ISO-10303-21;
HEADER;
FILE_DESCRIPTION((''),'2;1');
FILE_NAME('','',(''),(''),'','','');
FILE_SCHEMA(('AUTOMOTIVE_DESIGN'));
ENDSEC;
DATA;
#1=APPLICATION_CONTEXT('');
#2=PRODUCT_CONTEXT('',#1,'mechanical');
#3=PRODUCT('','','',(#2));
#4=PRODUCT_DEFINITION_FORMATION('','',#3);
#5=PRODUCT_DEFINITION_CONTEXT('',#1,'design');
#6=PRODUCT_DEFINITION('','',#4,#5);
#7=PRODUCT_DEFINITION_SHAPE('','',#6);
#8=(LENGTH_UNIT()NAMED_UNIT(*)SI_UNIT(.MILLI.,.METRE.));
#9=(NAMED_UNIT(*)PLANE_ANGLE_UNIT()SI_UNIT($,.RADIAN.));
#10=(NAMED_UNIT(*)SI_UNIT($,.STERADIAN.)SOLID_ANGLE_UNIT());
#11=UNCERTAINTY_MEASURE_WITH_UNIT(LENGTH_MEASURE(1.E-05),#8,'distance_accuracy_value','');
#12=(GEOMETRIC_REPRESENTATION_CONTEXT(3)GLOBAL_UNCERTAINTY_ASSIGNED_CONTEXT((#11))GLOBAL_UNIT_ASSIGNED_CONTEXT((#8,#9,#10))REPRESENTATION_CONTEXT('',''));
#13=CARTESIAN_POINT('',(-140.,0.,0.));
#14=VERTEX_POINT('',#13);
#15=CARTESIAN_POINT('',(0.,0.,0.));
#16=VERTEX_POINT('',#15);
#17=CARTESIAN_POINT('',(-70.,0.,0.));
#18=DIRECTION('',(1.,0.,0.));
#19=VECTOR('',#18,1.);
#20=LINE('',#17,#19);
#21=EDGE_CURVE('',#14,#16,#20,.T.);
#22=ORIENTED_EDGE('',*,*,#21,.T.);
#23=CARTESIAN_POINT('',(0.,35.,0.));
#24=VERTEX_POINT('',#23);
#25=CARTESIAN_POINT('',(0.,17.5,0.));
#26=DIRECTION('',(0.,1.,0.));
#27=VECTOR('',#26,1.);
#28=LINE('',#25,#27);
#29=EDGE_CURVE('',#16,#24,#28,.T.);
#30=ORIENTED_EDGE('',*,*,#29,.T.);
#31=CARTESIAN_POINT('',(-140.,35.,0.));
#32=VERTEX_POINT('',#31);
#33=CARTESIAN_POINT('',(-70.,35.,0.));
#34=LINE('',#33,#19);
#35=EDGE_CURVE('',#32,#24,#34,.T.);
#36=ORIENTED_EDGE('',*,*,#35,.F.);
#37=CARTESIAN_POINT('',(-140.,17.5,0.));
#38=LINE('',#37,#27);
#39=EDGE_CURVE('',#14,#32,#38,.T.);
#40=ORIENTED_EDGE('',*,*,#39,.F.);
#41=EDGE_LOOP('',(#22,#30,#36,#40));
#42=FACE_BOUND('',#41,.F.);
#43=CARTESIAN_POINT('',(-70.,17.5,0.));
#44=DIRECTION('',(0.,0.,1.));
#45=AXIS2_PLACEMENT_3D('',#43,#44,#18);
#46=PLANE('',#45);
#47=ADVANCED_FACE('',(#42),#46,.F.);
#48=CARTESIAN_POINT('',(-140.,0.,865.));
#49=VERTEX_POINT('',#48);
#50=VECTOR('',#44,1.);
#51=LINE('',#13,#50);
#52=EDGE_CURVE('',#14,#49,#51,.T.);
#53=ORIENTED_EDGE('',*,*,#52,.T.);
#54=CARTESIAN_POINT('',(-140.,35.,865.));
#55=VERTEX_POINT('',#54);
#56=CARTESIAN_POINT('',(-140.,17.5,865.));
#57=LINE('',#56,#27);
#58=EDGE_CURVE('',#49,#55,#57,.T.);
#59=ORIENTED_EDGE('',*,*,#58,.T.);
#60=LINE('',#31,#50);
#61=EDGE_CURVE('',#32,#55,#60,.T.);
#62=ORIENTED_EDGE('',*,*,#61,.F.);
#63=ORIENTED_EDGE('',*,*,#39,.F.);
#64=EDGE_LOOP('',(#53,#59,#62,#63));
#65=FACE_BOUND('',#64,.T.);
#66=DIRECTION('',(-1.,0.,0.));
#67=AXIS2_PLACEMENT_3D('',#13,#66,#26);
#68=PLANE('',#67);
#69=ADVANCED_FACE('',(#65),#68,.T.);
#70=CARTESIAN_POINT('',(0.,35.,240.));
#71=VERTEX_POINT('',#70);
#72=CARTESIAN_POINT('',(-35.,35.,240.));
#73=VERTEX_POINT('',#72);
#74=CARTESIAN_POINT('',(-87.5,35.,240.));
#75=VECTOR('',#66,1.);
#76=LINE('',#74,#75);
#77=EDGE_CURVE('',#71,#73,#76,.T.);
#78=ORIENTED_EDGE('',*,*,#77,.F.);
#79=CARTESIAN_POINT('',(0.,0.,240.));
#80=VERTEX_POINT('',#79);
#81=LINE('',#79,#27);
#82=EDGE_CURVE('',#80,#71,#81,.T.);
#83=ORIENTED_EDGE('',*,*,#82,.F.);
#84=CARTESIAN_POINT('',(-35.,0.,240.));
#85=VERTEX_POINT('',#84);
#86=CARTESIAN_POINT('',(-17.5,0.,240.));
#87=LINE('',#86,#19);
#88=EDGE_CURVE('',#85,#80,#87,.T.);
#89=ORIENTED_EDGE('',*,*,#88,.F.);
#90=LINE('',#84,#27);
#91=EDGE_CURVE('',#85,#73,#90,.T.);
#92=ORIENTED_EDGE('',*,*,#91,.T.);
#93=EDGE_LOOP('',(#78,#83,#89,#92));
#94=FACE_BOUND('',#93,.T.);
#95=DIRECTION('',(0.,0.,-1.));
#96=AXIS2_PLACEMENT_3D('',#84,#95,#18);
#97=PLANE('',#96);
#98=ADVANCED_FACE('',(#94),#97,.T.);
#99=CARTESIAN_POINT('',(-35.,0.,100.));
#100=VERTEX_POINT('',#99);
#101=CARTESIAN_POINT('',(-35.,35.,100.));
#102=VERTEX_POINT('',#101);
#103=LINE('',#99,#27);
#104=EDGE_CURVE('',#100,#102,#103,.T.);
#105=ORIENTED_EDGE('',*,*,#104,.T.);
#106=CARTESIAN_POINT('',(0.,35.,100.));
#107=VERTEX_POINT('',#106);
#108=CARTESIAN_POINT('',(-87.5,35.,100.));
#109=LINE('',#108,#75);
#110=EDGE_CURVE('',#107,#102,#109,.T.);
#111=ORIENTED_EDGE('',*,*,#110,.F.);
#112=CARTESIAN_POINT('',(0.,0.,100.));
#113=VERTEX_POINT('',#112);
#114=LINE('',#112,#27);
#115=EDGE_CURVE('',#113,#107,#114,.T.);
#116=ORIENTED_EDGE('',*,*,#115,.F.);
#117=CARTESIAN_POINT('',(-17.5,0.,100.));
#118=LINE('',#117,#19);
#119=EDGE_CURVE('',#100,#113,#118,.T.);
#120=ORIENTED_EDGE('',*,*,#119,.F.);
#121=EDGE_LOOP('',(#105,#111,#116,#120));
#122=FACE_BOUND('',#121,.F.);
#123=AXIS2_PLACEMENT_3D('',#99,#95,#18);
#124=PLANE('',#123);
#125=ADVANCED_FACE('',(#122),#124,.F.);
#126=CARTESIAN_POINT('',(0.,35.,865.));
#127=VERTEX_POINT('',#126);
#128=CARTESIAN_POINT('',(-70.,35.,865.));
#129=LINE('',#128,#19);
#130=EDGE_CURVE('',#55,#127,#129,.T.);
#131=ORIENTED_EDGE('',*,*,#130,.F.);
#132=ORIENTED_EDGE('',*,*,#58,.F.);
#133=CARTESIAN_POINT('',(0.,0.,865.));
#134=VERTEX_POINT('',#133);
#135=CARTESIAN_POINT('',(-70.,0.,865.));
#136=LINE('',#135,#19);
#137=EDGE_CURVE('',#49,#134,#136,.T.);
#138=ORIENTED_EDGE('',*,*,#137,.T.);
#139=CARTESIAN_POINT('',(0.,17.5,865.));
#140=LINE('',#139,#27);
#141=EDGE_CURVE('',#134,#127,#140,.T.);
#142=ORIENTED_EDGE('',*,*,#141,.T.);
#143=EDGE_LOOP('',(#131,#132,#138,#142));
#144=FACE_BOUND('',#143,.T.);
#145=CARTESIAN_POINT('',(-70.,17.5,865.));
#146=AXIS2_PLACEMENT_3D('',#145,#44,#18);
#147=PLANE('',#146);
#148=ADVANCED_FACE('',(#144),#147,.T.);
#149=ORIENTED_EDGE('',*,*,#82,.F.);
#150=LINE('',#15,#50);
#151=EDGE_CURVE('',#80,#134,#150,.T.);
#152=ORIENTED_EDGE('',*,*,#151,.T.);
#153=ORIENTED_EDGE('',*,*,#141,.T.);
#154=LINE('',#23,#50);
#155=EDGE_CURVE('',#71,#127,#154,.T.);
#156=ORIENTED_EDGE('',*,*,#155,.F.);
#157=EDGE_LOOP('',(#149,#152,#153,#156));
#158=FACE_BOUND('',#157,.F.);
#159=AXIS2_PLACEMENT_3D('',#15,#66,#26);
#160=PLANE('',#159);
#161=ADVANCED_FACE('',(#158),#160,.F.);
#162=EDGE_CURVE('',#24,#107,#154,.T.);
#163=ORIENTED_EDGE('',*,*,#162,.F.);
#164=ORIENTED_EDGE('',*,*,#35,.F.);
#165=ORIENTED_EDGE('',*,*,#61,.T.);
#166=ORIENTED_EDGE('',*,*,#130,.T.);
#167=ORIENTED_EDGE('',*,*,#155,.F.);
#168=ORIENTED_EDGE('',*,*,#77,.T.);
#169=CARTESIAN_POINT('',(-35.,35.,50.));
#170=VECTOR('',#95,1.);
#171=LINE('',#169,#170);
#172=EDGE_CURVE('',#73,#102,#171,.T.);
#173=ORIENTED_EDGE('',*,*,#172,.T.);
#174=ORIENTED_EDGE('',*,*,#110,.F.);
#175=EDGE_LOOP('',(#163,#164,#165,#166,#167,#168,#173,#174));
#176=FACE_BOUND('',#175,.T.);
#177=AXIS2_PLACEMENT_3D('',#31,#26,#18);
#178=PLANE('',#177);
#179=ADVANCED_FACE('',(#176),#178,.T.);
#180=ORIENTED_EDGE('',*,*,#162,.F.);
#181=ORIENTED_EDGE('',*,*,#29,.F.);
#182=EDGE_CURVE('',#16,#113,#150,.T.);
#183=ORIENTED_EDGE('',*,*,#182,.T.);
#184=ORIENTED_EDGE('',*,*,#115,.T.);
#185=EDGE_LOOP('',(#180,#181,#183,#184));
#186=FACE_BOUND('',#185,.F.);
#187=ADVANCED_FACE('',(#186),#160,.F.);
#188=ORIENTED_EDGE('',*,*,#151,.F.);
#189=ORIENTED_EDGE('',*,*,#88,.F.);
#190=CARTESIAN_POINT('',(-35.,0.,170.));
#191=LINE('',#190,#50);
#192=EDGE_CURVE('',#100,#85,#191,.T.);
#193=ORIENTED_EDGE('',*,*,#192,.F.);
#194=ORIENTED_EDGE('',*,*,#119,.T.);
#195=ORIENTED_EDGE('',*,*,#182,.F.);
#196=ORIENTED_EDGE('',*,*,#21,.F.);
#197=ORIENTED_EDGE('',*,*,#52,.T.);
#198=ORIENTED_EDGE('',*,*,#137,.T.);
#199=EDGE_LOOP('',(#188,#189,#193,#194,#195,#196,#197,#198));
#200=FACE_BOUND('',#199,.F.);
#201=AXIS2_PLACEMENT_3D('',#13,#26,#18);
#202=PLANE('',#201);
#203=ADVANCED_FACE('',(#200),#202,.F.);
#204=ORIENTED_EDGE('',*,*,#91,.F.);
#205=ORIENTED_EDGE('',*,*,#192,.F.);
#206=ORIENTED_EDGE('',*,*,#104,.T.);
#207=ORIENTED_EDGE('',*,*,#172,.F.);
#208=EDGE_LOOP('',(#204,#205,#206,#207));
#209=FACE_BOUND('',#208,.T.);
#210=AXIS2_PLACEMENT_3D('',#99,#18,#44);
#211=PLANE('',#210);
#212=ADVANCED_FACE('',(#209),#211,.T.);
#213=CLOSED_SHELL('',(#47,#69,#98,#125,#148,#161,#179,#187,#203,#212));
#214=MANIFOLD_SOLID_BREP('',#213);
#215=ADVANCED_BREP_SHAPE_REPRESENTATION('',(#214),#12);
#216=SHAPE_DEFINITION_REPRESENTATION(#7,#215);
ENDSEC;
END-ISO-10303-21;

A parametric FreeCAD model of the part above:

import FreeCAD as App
import Part
import Sketcher
from FreeCAD import Vector


def add_polygon(sketch, points):
    """Adds a closed chain of lines whose ends are joined by coincident constraints."""
    first, n = sketch.GeometryCount, len(points)
    for a, b in zip(points, points[1:] + points[:1]):
        sketch.addGeometry(Part.LineSegment(App.Vector(*a, 0), App.Vector(*b, 0)), False)
    for i in range(n):
        sketch.addConstraint(Sketcher.Constraint("Coincident", first + i, 2, first + (i + 1) % n, 1))

doc = App.newDocument("Part")
params = doc.addObject("Spreadsheet::Sheet", "Params")
for row, (alias, value) in enumerate([
    ("sketch1_width", "140 mm"),
    ("sketch1_height", "35 mm"),
    ("pad1_length", "865 mm"),
    ("sketch2_width", "35 mm"),
    ("sketch2_height", "140 mm"),
], start=1):
    params.set(f"A{row}", alias)
    params.set(f"B{row}", "=" + value)
    params.setAlias(f"B{row}", alias)

body = doc.addObject("PartDesign::Body", "Body")

# Sketch on XY plane
sketch1 = body.newObject("Sketcher::SketchObject", "Sketch")
sketch1.AttachmentSupport = (doc.getObject("XY_Plane"), [""])
sketch1.MapMode = "FlatFace"
add_polygon(sketch1, [(-140, 35), (-140, 0), (0, 0), (0, 35)])  # lines 0-3
sketch1.addConstraint(Sketcher.Constraint("Vertical", 0))
sketch1.addConstraint(Sketcher.Constraint("Horizontal", 1))
sketch1.addConstraint(Sketcher.Constraint("Vertical", 2))
sketch1.addConstraint(Sketcher.Constraint("Horizontal", 3))
sketch1.addConstraint(Sketcher.Constraint("Coincident", 1, 2, -1, 1))
sketch1.addConstraint(Sketcher.Constraint("DistanceX", 1, 1, 1, 2, 140.0))
sketch1.addConstraint(Sketcher.Constraint("DistanceY", 0, 2, 0, 1, 35.0))
sketch1.setExpression("Constraints[9]", "Params.sketch1_width")
sketch1.setExpression("Constraints[10]", "Params.sketch1_height")
pad1 = body.newObject("PartDesign::Pad", "Pad")
pad1.Profile = sketch1
pad1.setExpression("Length", "Params.pad1_length")

# Sketch on XZ plane
sketch2 = body.newObject("Sketcher::SketchObject", "Sketch001")
sketch2.AttachmentSupport = (doc.getObject("XZ_Plane"), [""])
sketch2.MapMode = "FlatFace"
add_polygon(sketch2, [(-35, 240), (-35, 100), (0, 100), (0, 240)])  # lines 0-3
sketch2.addConstraint(Sketcher.Constraint("Vertical", 0))
sketch2.addConstraint(Sketcher.Constraint("Horizontal", 1))
sketch2.addConstraint(Sketcher.Constraint("Vertical", 2))
sketch2.addConstraint(Sketcher.Constraint("Horizontal", 3))
sketch2.addConstraint(Sketcher.Constraint("PointOnObject", 1, 2, -2))
sketch2.addConstraint(Sketcher.Constraint("DistanceX", 1, 1, 1, 2, 35.0))
sketch2.addConstraint(Sketcher.Constraint("DistanceY", 0, 2, 0, 1, 140.0))
sketch2.addConstraint(Sketcher.Constraint("DistanceY", -1, 1, 0, 2, 100.0))
sketch2.setExpression("Constraints[9]", "Params.sketch2_width")
sketch2.setExpression("Constraints[10]", "Params.sketch2_height")
pocket1 = body.newObject("PartDesign::Pocket", "Pocket")
pocket1.Profile = sketch2
pocket1.Type = "ThroughAll"

doc.recompute()
